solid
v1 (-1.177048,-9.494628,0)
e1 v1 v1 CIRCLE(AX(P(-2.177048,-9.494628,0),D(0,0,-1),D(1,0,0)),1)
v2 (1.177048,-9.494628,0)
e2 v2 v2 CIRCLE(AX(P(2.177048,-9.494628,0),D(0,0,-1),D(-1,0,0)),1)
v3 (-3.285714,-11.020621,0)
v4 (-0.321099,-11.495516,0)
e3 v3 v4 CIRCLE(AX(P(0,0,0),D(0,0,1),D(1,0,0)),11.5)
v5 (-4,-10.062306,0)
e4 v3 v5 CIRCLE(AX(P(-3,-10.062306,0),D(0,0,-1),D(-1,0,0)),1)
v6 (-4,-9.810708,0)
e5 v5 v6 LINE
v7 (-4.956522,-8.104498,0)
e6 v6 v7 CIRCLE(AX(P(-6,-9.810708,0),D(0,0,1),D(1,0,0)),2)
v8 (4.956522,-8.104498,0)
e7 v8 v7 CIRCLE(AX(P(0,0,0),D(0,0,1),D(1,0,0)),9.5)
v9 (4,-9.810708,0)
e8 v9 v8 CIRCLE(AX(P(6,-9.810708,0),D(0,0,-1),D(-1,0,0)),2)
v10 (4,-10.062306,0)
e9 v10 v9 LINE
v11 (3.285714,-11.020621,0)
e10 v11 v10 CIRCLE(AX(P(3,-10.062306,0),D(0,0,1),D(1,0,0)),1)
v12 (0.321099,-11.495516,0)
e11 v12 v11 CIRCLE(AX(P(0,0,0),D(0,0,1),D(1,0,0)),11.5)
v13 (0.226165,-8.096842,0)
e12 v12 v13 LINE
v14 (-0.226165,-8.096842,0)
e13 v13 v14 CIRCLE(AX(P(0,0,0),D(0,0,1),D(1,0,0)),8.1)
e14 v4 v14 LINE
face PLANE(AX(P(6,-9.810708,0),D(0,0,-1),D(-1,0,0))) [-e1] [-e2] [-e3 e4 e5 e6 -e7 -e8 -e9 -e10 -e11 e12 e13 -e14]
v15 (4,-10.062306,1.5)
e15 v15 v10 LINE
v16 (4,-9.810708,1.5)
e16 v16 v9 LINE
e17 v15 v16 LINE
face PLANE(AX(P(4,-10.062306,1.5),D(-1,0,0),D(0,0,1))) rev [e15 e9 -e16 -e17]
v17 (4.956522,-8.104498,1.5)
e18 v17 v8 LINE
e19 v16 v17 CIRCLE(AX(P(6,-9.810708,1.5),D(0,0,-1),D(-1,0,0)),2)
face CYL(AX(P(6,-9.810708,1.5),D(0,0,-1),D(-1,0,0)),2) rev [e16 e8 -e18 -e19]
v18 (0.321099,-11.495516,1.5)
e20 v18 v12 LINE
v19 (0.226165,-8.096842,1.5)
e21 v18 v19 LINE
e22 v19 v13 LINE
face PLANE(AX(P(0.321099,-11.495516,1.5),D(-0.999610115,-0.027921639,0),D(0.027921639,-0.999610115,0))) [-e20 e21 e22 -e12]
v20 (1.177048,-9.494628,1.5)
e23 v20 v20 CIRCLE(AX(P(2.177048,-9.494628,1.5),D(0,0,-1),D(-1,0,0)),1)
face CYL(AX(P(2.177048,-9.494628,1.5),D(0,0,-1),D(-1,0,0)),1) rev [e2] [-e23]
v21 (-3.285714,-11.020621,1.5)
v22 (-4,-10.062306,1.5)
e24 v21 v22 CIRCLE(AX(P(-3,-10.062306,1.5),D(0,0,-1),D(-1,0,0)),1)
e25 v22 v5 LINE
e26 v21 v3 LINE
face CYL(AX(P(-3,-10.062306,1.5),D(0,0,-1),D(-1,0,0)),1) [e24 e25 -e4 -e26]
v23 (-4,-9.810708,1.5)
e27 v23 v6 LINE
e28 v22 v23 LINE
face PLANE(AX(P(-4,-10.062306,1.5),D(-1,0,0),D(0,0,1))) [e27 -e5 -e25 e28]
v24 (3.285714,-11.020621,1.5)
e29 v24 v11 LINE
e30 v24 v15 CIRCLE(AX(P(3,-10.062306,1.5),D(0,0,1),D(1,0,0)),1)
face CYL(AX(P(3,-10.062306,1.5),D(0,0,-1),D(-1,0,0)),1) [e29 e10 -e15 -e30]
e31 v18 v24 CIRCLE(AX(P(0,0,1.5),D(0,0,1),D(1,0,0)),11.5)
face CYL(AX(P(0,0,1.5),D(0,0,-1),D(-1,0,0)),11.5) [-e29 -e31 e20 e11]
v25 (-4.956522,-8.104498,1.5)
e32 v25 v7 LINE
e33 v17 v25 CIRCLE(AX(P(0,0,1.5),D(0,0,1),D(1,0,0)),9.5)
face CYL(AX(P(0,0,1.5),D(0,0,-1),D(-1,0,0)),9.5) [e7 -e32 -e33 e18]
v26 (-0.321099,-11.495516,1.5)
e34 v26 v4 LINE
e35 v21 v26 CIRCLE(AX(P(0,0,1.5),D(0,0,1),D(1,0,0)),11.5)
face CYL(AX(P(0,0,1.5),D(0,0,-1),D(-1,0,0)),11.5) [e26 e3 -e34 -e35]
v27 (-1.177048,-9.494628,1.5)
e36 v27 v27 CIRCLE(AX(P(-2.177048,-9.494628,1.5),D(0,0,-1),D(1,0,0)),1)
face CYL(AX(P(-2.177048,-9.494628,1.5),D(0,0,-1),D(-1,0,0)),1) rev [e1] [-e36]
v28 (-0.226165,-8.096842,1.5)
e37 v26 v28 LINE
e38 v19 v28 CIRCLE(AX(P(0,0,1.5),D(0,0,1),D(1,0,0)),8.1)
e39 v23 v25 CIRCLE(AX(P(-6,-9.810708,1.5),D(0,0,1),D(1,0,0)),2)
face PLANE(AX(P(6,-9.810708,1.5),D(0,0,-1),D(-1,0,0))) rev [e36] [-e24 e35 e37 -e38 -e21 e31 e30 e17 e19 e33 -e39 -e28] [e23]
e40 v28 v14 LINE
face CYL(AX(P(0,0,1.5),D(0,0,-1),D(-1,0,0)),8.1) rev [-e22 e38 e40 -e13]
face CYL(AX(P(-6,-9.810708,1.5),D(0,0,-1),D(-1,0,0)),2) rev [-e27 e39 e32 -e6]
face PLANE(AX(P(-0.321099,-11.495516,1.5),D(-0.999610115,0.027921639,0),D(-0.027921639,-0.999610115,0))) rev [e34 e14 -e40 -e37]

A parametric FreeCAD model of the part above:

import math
import FreeCAD as App
import Part
import Sketcher
Q = App.Units.Quantity

doc = App.newDocument("Part")
body = doc.addObject("PartDesign::Body", "Body")

sketch1 = body.newObject("Sketcher::SketchObject", "Sketch")
sketch1.AttachmentSupport = (doc.getObject("XY_Plane"), [""])
sketch1.MapMode = "FlatFace"
sketch1.addGeometry(Part.LineSegment(App.Vector(-0.32, -11.5, 0), App.Vector(-0.23, -8.1, 0)), False)
sketch1.addGeometry(Part.ArcOfCircle(Part.Circle(App.Vector(0, 0, 0), App.Vector(0, 0, 1), 8.1), math.radians(-88), math.radians(268)), False)
sketch1.addGeometry(Part.LineSegment(App.Vector(0.23, -8.1, 0), App.Vector(0.32, -11.5, 0)), False)
sketch1.addGeometry(Part.ArcOfCircle(Part.Circle(App.Vector(0, 0, 0), App.Vector(0, 0, 1), 11.5), math.radians(-88.4), math.radians(-73.4)), False)
sketch1.addGeometry(Part.ArcOfCircle(Part.Circle(App.Vector(3, -10.06, 0), App.Vector(0, 0, 1), 1), math.radians(-73), math.radians(0)), False)
sketch1.addGeometry(Part.LineSegment(App.Vector(4, -10.06, 0), App.Vector(4, -9.81, 0)), False)
sketch1.addGeometry(Part.ArcOfCircle(Part.Circle(App.Vector(6, -9.81, 0), App.Vector(0, 0, 1), 2), math.radians(121), math.radians(180)), False)
sketch1.addGeometry(Part.ArcOfCircle(Part.Circle(App.Vector(0, 0, 0), App.Vector(0, 0, 1), 9.5), math.radians(-59), math.radians(239)), False)
sketch1.addGeometry(Part.ArcOfCircle(Part.Circle(App.Vector(-6, -9.81, 0), App.Vector(0, 0, 1), 2), math.radians(0), math.radians(59)), False)
sketch1.addGeometry(Part.LineSegment(App.Vector(-4, -9.81, 0), App.Vector(-4, -10.06, 0)), False)
sketch1.addGeometry(Part.ArcOfCircle(Part.Circle(App.Vector(-3, -10.06, 0), App.Vector(0, 0, 1), 1), math.radians(180), math.radians(253)), False)
sketch1.addGeometry(Part.ArcOfCircle(Part.Circle(App.Vector(0, 0, 0), App.Vector(0, 0, 1), 11.5), math.radians(-106.6), math.radians(-91.6)), False)
sketch1.addConstraint(Sketcher.Constraint("Coincident", 0, 2, 1, 2))
sketch1.addConstraint(Sketcher.Constraint("Coincident", 1, 1, 2, 1))
sketch1.addConstraint(Sketcher.Constraint("Coincident", 2, 2, 3, 1))
sketch1.addConstraint(Sketcher.Constraint("Tangent", 3, 2, 4, 1))
sketch1.addConstraint(Sketcher.Constraint("Tangent", 4, 2, 5, 1))
sketch1.addConstraint(Sketcher.Constraint("Tangent", 5, 2, 6, 2))
sketch1.addConstraint(Sketcher.Constraint("Tangent", 6, 1, 7, 1))
sketch1.addConstraint(Sketcher.Constraint("Tangent", 7, 2, 8, 2))
sketch1.addConstraint(Sketcher.Constraint("Tangent", 8, 1, 9, 1))
sketch1.addConstraint(Sketcher.Constraint("Tangent", 9, 2, 10, 1))
sketch1.addConstraint(Sketcher.Constraint("Tangent", 10, 2, 11, 1))
sketch1.addConstraint(Sketcher.Constraint("Coincident", 11, 2, 0, 1))
sketch1.addConstraint(Sketcher.Constraint("Vertical", 5))
sketch1.addConstraint(Sketcher.Constraint("Vertical", 9))
sketch1.addConstraint(Sketcher.Constraint("Coincident", 1, 3, -1, 1))
sketch1.addConstraint(Sketcher.Constraint("Coincident", 3, 3, -1, 1))
sketch1.addConstraint(Sketcher.Constraint("Coincident", 7, 3, -1, 1))
sketch1.addConstraint(Sketcher.Constraint("Coincident", 11, 3, -1, 1))
sketch1.addConstraint(Sketcher.Constraint("Equal", 6, 8))
sketch1.addConstraint(Sketcher.Constraint("Equal", 4, 10))
sketch1.addConstraint(Sketcher.Constraint("Equal", 3, 11))
sketch1.addConstraint(Sketcher.Constraint("Horizontal", 6, 3, 8, 3))
sketch1.addConstraint(Sketcher.Constraint("Horizontal", 0, 2, 1, 1))
sketch1.addConstraint(Sketcher.Constraint("Horizontal", 2, 2, 11, 2))
sketch1.addConstraint(Sketcher.Constraint("Radius", 4, Q("1 mm")))
sketch1.addConstraint(Sketcher.Constraint("Radius", 6, Q("2 mm")))
sketch1.addConstraint(Sketcher.Constraint("Radius", 1, Q("8.1 mm")))
sketch1.addConstraint(Sketcher.Constraint("Radius", 3, Q("11.5 mm")))
sketch1.addConstraint(Sketcher.Constraint("Radius", 7, Q("9.5 mm")))
sketch1.addConstraint(Sketcher.Constraint("DistanceX", -1, 1, 4, 3, Q("3 mm")))
sketch1.addConstraint(Sketcher.Constraint("Angle", 0, Q("88.4 deg")))
sketch1.addConstraint(Sketcher.Constraint("DistanceX", -1, 1, 2, 2, Q("0.321099 mm")))
pad1 = body.newObject("PartDesign::Pad", "Pad")
pad1.Profile = sketch1
pad1.Length = 1.5

sketch2 = body.newObject("Sketcher::SketchObject", "Sketch001")
sketch2.AttachmentSupport = (doc.getObject("XY_Plane"), [""])
sketch2.MapMode = "FlatFace"
sketch2.addGeometry(Part.Circle(App.Vector(2.2, -9.5, 0), App.Vector(0, 0, 1), 1), False)
sketch2.addGeometry(Part.Circle(App.Vector(-2.2, -9.5, 0), App.Vector(0, 0, 1), 1), False)
sketch2.addConstraint(Sketcher.Constraint("Equal", 0, 1))
sketch2.addConstraint(Sketcher.Constraint("Symmetric", 0, 3, 1, 3, -2))
sketch2.addConstraint(Sketcher.Constraint("Diameter", 0, Q("2 mm")))
sketch2.addConstraint(Sketcher.Constraint("DistanceY", 0, 3, -1, 1, Q("9.494628 mm")))
sketch2.addConstraint(Sketcher.Constraint("DistanceX", -1, 1, 0, 3, Q("2.177048 mm")))
pocket1 = body.newObject("PartDesign::Pocket", "Pocket")
pocket1.Profile = sketch2
pocket1.Length = 1.5
pocket1.Reversed = True

doc.recompute()
